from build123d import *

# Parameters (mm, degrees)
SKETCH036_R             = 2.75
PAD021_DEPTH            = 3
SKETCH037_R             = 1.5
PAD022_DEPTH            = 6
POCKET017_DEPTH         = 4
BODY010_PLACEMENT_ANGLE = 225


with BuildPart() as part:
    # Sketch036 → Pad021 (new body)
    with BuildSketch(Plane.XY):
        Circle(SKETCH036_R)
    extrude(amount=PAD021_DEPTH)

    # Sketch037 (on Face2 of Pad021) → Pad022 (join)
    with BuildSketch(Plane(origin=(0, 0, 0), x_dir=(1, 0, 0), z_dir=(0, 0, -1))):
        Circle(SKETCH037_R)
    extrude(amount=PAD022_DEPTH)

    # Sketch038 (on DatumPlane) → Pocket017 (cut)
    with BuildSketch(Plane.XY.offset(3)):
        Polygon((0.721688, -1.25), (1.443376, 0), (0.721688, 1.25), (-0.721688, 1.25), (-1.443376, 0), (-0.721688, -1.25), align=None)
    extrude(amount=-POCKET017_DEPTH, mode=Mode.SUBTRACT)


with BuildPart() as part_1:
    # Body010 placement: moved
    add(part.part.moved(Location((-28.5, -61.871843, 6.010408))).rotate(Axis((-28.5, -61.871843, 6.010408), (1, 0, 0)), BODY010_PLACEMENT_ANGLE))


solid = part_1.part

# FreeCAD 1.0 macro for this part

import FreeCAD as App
import Part
import Sketcher

V = App.Vector
Q = App.Units.Quantity

doc = App.newDocument("Part")
body = doc.addObject("PartDesign::Body", "Body")

sketch1 = body.newObject("Sketcher::SketchObject", "Sketch")
sketch1.AttachmentSupport = (doc.getObject("XY_Plane"), [""])
sketch1.MapMode = "FlatFace"
sketch1.addGeometry(Part.Circle(V(0, 0, 0), V(0, 0, 1), 2.8), False)
sketch1.addConstraint([
    Sketcher.Constraint("Coincident", 0, 3, -1, 1),
    Sketcher.Constraint("Diameter", 0, 5.5),
])
pad1 = body.newObject("PartDesign::Pad", "Pad")
pad1.Profile = sketch1
pad1.Length = 3

sketch2 = body.newObject("Sketcher::SketchObject", "Sketch001")
sketch2.AttachmentSupport = (doc.getObject("XY_Plane"), [""])
sketch2.MapMode = "FlatFace"
sketch2.addGeometry(Part.Circle(V(0, 0, 0), V(0, 0, 1), 1.5), False)
sketch2.addConstraint([
    Sketcher.Constraint("Coincident", 0, 3, -1, 1),
    Sketcher.Constraint("Diameter", 0, 3.0),
])
pad2 = body.newObject("PartDesign::Pad", "Pad001")
pad2.Profile = sketch2
pad2.Length = 6
pad2.Reversed = True

sketch3 = body.newObject("Sketcher::SketchObject", "Sketch002")
sketch3.AttachmentSupport = (doc.getObject("XY_Plane"), [""])
sketch3.MapMode = "FlatFace"
sketch3.AttachmentOffset = App.Placement(V(0, 0, 3), App.Rotation())
sketch3.addGeometry([
    Part.LineSegment(V(0.7, -1.2, 0), V(1.4, 0, 0)),
    Part.LineSegment(V(1.4, 0, 0), V(0.7, 1.2, 0)),
    Part.LineSegment(V(0.7, 1.2, 0), V(-0.7, 1.2, 0)),
    Part.LineSegment(V(-0.7, 1.2, 0), V(-1.4, 0, 0)),
    Part.LineSegment(V(-1.4, 0, 0), V(-0.7, -1.2, 0)),
    Part.LineSegment(V(-0.7, -1.2, 0), V(0.7, -1.2, 0)),
], False)
sketch3.addConstraint([
    Sketcher.Constraint("Coincident", 0, 2, 1, 1),
    Sketcher.Constraint("Coincident", 1, 2, 2, 1),
    Sketcher.Constraint("Coincident", 2, 2, 3, 1),
    Sketcher.Constraint("Coincident", 3, 2, 4, 1),
    Sketcher.Constraint("Coincident", 4, 2, 5, 1),
    Sketcher.Constraint("Coincident", 5, 2, 0, 1),
    Sketcher.Constraint("Horizontal", 2),
    Sketcher.Constraint("Horizontal", 5),
    Sketcher.Constraint("Symmetric", 0, 2, 3, 2, -1, 1),
    Sketcher.Constraint("Symmetric", 1, 2, 4, 2, -1, 1),
    Sketcher.Constraint("PointOnObject", 0, 2, -1),
    Sketcher.Constraint("Parallel", 0, 3),
    Sketcher.Constraint("Vertical", 2, 2, 4, 2),
    Sketcher.Constraint("Angle", 0, Q("59.999994 deg")),
    Sketcher.Constraint("DistanceY", 4, 2, 2, 2, 2.5),
    Sketcher.Constraint("DistanceX", 2, 2, 2, 1, 1.443376),
])
pocket1 = body.newObject("PartDesign::Pocket", "Pocket")
pocket1.Profile = sketch3
pocket1.Length = 4
body2 = doc.addObject("PartDesign::Body", "Body001")
doc.recompute()

body.Placement = App.Placement(V(-28.5, -61.871843, 6.010408), App.Rotation(V(1, 0, 0), 225))
boolean = body2.newObject("PartDesign::Boolean", "Boolean")
boolean.Type = "Fuse"
boolean.addObjects([body])

doc.recompute()
